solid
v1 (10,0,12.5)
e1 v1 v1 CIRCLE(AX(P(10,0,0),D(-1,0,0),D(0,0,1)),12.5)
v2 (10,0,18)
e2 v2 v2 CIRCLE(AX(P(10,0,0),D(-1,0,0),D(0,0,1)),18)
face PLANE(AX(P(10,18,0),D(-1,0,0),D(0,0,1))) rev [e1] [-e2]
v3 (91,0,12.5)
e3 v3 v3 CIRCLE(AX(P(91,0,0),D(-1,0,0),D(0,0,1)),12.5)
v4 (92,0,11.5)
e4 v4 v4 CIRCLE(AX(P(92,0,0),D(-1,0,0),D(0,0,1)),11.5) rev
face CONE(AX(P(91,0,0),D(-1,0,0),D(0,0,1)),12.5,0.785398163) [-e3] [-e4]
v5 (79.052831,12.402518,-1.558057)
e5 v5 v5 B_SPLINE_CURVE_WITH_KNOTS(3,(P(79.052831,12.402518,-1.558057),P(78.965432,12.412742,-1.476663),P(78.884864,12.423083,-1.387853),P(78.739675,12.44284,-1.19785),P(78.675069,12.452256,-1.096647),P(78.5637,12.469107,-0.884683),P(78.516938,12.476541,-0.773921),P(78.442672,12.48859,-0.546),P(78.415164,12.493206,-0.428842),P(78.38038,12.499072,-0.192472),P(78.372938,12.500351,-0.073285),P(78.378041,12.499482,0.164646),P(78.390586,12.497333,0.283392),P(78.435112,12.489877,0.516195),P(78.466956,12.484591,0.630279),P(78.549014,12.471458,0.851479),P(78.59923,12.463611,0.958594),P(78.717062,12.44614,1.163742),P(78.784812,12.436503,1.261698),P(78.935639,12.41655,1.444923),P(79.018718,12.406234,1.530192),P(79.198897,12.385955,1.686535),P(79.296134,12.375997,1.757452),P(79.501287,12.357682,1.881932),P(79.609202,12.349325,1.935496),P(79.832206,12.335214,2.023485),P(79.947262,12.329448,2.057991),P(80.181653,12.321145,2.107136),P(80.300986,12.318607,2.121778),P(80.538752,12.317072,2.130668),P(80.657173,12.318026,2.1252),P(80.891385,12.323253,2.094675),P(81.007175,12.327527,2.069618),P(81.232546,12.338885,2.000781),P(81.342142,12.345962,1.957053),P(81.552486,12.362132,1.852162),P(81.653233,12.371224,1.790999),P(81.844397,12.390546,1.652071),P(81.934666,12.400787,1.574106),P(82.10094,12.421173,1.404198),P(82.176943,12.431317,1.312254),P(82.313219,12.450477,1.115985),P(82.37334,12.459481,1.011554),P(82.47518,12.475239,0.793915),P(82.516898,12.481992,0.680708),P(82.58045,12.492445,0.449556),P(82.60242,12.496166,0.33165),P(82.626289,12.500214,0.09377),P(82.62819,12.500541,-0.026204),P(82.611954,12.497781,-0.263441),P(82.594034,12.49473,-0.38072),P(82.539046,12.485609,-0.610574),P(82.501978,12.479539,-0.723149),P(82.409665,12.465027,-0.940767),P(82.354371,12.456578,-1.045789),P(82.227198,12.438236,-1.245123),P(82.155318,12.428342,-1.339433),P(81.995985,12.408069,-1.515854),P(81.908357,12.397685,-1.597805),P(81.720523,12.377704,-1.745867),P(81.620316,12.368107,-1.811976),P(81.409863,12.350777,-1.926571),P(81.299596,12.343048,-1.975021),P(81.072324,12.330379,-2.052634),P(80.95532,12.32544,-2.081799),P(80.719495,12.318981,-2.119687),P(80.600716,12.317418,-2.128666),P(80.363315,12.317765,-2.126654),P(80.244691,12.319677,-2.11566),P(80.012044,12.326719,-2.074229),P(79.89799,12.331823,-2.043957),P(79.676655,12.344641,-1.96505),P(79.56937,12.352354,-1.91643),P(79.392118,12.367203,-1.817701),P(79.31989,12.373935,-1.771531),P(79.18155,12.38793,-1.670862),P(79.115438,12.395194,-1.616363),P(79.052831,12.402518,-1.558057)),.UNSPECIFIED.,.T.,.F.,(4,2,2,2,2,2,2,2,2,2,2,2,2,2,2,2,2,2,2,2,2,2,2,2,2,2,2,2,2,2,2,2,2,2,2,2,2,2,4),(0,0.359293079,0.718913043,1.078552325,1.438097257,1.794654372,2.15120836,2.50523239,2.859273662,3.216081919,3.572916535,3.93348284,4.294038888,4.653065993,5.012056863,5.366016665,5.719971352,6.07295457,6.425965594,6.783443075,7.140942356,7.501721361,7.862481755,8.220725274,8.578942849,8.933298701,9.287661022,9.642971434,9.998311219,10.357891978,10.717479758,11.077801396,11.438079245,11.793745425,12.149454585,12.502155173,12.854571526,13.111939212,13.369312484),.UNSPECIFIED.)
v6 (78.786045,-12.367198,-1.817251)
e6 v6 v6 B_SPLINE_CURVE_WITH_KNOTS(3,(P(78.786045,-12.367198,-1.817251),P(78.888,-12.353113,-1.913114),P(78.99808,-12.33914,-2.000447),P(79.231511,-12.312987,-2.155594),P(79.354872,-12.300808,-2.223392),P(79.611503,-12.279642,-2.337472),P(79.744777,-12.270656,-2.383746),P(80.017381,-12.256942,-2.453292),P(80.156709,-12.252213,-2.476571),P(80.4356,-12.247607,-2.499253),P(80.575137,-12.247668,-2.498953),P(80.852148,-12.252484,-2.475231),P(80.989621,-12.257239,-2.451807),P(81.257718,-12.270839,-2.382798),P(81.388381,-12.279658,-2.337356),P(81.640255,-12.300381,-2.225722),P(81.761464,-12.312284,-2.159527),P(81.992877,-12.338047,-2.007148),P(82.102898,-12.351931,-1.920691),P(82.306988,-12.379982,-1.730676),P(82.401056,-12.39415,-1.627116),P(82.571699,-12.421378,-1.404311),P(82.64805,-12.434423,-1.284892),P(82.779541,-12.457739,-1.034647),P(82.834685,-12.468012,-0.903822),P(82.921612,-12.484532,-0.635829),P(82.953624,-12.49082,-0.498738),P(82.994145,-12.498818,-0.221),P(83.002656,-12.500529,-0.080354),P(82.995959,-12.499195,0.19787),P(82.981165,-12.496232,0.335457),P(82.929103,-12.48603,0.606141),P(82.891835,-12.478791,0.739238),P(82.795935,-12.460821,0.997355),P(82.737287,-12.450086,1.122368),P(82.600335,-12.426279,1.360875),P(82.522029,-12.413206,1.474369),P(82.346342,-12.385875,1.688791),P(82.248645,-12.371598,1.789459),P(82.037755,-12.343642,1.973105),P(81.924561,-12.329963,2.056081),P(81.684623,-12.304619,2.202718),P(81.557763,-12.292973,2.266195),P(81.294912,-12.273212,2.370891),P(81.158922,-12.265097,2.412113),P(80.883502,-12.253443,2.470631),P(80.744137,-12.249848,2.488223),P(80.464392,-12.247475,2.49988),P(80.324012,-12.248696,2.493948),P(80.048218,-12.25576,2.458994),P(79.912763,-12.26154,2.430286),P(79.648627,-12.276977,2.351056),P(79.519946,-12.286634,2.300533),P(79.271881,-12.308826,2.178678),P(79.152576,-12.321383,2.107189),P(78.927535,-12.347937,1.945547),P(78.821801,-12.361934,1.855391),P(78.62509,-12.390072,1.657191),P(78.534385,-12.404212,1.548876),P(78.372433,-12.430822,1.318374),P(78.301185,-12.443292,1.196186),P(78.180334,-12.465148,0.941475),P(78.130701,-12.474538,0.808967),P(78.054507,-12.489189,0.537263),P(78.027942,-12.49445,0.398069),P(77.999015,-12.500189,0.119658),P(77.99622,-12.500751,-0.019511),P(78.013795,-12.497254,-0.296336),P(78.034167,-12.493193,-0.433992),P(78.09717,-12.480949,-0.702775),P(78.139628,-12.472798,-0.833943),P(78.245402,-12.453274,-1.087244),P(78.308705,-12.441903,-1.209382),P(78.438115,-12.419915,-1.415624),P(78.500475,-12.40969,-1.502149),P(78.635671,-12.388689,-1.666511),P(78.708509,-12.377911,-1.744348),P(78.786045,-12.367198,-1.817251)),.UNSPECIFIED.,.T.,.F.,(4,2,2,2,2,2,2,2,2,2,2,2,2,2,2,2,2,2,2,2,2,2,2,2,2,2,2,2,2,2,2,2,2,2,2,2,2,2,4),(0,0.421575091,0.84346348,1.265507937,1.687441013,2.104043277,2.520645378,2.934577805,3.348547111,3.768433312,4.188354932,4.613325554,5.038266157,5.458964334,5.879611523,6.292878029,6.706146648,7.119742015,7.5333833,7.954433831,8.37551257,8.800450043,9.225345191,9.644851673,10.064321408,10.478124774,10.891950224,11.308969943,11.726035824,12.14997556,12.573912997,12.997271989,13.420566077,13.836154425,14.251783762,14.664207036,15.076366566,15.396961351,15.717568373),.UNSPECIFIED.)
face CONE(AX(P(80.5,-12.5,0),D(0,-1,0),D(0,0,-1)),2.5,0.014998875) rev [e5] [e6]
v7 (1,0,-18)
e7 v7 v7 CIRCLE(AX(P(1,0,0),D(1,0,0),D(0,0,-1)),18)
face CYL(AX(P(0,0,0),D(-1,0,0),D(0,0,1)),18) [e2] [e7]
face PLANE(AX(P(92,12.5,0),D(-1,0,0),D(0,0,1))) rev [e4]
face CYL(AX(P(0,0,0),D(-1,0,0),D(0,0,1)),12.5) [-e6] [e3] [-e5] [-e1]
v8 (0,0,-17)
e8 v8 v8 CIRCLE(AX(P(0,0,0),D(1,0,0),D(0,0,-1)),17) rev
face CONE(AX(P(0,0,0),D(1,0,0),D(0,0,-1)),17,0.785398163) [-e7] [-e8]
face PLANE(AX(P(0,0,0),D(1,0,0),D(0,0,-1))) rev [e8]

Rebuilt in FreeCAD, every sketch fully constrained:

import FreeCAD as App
import Part
import Sketcher
from FreeCAD import Vector


def edges_at(feature, points):
    """Names of the edges that pass closest to the given points."""
    edges = feature.Shape.Edges
    near = lambda p: min(range(len(edges)), key=lambda i: edges[i].distToShape(Part.Vertex(*p))[0])
    return sorted({f"Edge{near(p) + 1}" for p in points})

doc = App.newDocument("Part")
body = doc.addObject("PartDesign::Body", "Body")

sketch1 = body.newObject("Sketcher::SketchObject", "Sketch")
sketch1.AttachmentSupport = (doc.getObject("XY_Plane"), [""])
sketch1.MapMode = "FlatFace"
sketch1.addGeometry(Part.LineSegment(Vector(0, 18, 0), Vector(0, 0, 0)), False)
sketch1.addGeometry(Part.LineSegment(Vector(0, 0, 0), Vector(92, 0, 0)), False)
sketch1.addGeometry(Part.LineSegment(Vector(92, 0, 0), Vector(92, 12, 0)), False)
sketch1.addGeometry(Part.LineSegment(Vector(92, 12, 0), Vector(10, 12, 0)), False)
sketch1.addGeometry(Part.LineSegment(Vector(10, 12, 0), Vector(10, 18, 0)), False)
sketch1.addGeometry(Part.LineSegment(Vector(10, 18, 0), Vector(0, 18, 0)), False)
sketch1.addConstraint(Sketcher.Constraint("Coincident", 0, 2, 1, 1))
sketch1.addConstraint(Sketcher.Constraint("Coincident", 1, 2, 2, 1))
sketch1.addConstraint(Sketcher.Constraint("Coincident", 2, 2, 3, 1))
sketch1.addConstraint(Sketcher.Constraint("Coincident", 3, 2, 4, 1))
sketch1.addConstraint(Sketcher.Constraint("Coincident", 4, 2, 5, 1))
sketch1.addConstraint(Sketcher.Constraint("Coincident", 5, 2, 0, 1))
sketch1.addConstraint(Sketcher.Constraint("Vertical", 0))
sketch1.addConstraint(Sketcher.Constraint("Horizontal", 1))
sketch1.addConstraint(Sketcher.Constraint("Vertical", 2))
sketch1.addConstraint(Sketcher.Constraint("Horizontal", 3))
sketch1.addConstraint(Sketcher.Constraint("Vertical", 4))
sketch1.addConstraint(Sketcher.Constraint("Horizontal", 5))
sketch1.addConstraint(Sketcher.Constraint("Coincident", 0, 2, -1, 1))
sketch1.addConstraint(Sketcher.Constraint("DistanceX", 1, 1, 1, 2, 92.0))
sketch1.addConstraint(Sketcher.Constraint("DistanceX", 3, 2, 3, 1, 82.0))
sketch1.addConstraint(Sketcher.Constraint("DistanceY", 0, 2, 0, 1, 18.0))
sketch1.addConstraint(Sketcher.Constraint("DistanceY", 2, 1, 2, 2, 12.5))
revolution = body.newObject("PartDesign::Revolution", "Revolution")
revolution.Profile = sketch1
revolution.ReferenceAxis = (sketch1, ["H_Axis"])
revolution.Angle = 360

sketch2 = body.newObject("Sketcher::SketchObject", "Sketch001")
sketch2.AttachmentSupport = (doc.getObject("XY_Plane"), [""])
sketch2.MapMode = "FlatFace"
sketch2.addGeometry(Part.LineSegment(Vector(83, -12.5, 0), Vector(82.6, 12.5, 0)), False)
sketch2.addGeometry(Part.LineSegment(Vector(82.6, 12.5, 0), Vector(80.5, 12.5, 0)), False)
sketch2.addGeometry(Part.LineSegment(Vector(80.5, 12.5, 0), Vector(80.5, -12.5, 0)), False)
sketch2.addGeometry(Part.LineSegment(Vector(80.5, -12.5, 0), Vector(83, -12.5, 0)), False)
sketch2.addGeometry(Part.LineSegment(Vector(80.5, 12.5, 0), Vector(80.5, -12.5, 0)), True)
sketch2.addConstraint(Sketcher.Constraint("Coincident", 0, 2, 1, 1))
sketch2.addConstraint(Sketcher.Constraint("Coincident", 1, 2, 2, 1))
sketch2.addConstraint(Sketcher.Constraint("Coincident", 2, 2, 3, 1))
sketch2.addConstraint(Sketcher.Constraint("Coincident", 3, 2, 0, 1))
sketch2.addConstraint(Sketcher.Constraint("Horizontal", 1))
sketch2.addConstraint(Sketcher.Constraint("Vertical", 2))
sketch2.addConstraint(Sketcher.Constraint("Horizontal", 3))
sketch2.addConstraint(Sketcher.Constraint("Vertical", 4))
sketch2.addConstraint(Sketcher.Constraint("Coincident", 4, 1, 1, 2))
sketch2.addConstraint(Sketcher.Constraint("Horizontal", 3, 2, 4, 2))
sketch2.addConstraint(Sketcher.Constraint("DistanceY", 2, 2, 2, 1, 25.0))
sketch2.addConstraint(Sketcher.Constraint("DistanceX", 3, 1, 3, 2, 2.5))
sketch2.addConstraint(Sketcher.Constraint("DistanceX", -1, 1, 3, 2, 83.0))
sketch2.addConstraint(Sketcher.Constraint("DistanceY", -1, 1, 0, 2, 12.5))
sketch2.addConstraint(Sketcher.Constraint("DistanceX", 1, 2, 1, 1, 2.125))
groove = body.newObject("PartDesign::Groove", "Groove")
groove.Profile = sketch2
groove.ReferenceAxis = (sketch2, ["Axis0"])
groove.Angle = 360
doc.recompute()

chamfer = body.newObject("PartDesign::Chamfer", "Chamfer")
chamfer.Base = (groove, edges_at(groove, [(92, 0, -12.5), (0, 0, -18)]))
chamfer.Size = 1

doc.recompute()
